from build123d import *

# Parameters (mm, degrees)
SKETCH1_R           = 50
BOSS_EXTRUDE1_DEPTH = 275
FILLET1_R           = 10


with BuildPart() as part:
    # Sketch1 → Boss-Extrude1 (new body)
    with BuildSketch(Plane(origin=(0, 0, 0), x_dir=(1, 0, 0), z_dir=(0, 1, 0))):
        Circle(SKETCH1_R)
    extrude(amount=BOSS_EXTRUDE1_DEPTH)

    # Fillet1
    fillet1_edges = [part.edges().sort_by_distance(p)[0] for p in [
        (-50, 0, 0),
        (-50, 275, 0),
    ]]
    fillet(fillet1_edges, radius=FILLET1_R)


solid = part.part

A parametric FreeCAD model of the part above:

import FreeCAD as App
import Part
import Sketcher
Q = App.Units.Quantity


def edges_at(feature, points):
    """Names of the edges that pass closest to the given points."""
    edges = feature.Shape.Edges
    near = lambda p: min(range(len(edges)), key=lambda i: edges[i].distToShape(Part.Vertex(*p))[0])
    return sorted({f"Edge{near(p) + 1}" for p in points})

doc = App.newDocument("Part")
body = doc.addObject("PartDesign::Body", "Body")

# Sketch on XZ plane
sketch1 = body.newObject("Sketcher::SketchObject", "Sketch")
sketch1.AttachmentSupport = (doc.getObject("XZ_Plane"), [""])
sketch1.MapMode = "FlatFace"
sketch1.addGeometry(Part.Circle(App.Vector(0, 0, 0), App.Vector(0, 0, 1), 50), False)
sketch1.addConstraint([
    Sketcher.Constraint("Coincident", 0, 3, -1, 1),
    Sketcher.Constraint("Diameter", 0, Q("100 mm")),
])
pad1 = body.newObject("PartDesign::Pad", "Pad")
pad1.Profile = sketch1
pad1.Length = 275
pad1.Reversed = True
doc.recompute()

fillet = body.newObject("PartDesign::Fillet", "Fillet")
fillet.Base = (pad1, edges_at(pad1, [(-50, 0, 0), (-50, 275, 0)]))
fillet.Radius = 10

doc.recompute()
